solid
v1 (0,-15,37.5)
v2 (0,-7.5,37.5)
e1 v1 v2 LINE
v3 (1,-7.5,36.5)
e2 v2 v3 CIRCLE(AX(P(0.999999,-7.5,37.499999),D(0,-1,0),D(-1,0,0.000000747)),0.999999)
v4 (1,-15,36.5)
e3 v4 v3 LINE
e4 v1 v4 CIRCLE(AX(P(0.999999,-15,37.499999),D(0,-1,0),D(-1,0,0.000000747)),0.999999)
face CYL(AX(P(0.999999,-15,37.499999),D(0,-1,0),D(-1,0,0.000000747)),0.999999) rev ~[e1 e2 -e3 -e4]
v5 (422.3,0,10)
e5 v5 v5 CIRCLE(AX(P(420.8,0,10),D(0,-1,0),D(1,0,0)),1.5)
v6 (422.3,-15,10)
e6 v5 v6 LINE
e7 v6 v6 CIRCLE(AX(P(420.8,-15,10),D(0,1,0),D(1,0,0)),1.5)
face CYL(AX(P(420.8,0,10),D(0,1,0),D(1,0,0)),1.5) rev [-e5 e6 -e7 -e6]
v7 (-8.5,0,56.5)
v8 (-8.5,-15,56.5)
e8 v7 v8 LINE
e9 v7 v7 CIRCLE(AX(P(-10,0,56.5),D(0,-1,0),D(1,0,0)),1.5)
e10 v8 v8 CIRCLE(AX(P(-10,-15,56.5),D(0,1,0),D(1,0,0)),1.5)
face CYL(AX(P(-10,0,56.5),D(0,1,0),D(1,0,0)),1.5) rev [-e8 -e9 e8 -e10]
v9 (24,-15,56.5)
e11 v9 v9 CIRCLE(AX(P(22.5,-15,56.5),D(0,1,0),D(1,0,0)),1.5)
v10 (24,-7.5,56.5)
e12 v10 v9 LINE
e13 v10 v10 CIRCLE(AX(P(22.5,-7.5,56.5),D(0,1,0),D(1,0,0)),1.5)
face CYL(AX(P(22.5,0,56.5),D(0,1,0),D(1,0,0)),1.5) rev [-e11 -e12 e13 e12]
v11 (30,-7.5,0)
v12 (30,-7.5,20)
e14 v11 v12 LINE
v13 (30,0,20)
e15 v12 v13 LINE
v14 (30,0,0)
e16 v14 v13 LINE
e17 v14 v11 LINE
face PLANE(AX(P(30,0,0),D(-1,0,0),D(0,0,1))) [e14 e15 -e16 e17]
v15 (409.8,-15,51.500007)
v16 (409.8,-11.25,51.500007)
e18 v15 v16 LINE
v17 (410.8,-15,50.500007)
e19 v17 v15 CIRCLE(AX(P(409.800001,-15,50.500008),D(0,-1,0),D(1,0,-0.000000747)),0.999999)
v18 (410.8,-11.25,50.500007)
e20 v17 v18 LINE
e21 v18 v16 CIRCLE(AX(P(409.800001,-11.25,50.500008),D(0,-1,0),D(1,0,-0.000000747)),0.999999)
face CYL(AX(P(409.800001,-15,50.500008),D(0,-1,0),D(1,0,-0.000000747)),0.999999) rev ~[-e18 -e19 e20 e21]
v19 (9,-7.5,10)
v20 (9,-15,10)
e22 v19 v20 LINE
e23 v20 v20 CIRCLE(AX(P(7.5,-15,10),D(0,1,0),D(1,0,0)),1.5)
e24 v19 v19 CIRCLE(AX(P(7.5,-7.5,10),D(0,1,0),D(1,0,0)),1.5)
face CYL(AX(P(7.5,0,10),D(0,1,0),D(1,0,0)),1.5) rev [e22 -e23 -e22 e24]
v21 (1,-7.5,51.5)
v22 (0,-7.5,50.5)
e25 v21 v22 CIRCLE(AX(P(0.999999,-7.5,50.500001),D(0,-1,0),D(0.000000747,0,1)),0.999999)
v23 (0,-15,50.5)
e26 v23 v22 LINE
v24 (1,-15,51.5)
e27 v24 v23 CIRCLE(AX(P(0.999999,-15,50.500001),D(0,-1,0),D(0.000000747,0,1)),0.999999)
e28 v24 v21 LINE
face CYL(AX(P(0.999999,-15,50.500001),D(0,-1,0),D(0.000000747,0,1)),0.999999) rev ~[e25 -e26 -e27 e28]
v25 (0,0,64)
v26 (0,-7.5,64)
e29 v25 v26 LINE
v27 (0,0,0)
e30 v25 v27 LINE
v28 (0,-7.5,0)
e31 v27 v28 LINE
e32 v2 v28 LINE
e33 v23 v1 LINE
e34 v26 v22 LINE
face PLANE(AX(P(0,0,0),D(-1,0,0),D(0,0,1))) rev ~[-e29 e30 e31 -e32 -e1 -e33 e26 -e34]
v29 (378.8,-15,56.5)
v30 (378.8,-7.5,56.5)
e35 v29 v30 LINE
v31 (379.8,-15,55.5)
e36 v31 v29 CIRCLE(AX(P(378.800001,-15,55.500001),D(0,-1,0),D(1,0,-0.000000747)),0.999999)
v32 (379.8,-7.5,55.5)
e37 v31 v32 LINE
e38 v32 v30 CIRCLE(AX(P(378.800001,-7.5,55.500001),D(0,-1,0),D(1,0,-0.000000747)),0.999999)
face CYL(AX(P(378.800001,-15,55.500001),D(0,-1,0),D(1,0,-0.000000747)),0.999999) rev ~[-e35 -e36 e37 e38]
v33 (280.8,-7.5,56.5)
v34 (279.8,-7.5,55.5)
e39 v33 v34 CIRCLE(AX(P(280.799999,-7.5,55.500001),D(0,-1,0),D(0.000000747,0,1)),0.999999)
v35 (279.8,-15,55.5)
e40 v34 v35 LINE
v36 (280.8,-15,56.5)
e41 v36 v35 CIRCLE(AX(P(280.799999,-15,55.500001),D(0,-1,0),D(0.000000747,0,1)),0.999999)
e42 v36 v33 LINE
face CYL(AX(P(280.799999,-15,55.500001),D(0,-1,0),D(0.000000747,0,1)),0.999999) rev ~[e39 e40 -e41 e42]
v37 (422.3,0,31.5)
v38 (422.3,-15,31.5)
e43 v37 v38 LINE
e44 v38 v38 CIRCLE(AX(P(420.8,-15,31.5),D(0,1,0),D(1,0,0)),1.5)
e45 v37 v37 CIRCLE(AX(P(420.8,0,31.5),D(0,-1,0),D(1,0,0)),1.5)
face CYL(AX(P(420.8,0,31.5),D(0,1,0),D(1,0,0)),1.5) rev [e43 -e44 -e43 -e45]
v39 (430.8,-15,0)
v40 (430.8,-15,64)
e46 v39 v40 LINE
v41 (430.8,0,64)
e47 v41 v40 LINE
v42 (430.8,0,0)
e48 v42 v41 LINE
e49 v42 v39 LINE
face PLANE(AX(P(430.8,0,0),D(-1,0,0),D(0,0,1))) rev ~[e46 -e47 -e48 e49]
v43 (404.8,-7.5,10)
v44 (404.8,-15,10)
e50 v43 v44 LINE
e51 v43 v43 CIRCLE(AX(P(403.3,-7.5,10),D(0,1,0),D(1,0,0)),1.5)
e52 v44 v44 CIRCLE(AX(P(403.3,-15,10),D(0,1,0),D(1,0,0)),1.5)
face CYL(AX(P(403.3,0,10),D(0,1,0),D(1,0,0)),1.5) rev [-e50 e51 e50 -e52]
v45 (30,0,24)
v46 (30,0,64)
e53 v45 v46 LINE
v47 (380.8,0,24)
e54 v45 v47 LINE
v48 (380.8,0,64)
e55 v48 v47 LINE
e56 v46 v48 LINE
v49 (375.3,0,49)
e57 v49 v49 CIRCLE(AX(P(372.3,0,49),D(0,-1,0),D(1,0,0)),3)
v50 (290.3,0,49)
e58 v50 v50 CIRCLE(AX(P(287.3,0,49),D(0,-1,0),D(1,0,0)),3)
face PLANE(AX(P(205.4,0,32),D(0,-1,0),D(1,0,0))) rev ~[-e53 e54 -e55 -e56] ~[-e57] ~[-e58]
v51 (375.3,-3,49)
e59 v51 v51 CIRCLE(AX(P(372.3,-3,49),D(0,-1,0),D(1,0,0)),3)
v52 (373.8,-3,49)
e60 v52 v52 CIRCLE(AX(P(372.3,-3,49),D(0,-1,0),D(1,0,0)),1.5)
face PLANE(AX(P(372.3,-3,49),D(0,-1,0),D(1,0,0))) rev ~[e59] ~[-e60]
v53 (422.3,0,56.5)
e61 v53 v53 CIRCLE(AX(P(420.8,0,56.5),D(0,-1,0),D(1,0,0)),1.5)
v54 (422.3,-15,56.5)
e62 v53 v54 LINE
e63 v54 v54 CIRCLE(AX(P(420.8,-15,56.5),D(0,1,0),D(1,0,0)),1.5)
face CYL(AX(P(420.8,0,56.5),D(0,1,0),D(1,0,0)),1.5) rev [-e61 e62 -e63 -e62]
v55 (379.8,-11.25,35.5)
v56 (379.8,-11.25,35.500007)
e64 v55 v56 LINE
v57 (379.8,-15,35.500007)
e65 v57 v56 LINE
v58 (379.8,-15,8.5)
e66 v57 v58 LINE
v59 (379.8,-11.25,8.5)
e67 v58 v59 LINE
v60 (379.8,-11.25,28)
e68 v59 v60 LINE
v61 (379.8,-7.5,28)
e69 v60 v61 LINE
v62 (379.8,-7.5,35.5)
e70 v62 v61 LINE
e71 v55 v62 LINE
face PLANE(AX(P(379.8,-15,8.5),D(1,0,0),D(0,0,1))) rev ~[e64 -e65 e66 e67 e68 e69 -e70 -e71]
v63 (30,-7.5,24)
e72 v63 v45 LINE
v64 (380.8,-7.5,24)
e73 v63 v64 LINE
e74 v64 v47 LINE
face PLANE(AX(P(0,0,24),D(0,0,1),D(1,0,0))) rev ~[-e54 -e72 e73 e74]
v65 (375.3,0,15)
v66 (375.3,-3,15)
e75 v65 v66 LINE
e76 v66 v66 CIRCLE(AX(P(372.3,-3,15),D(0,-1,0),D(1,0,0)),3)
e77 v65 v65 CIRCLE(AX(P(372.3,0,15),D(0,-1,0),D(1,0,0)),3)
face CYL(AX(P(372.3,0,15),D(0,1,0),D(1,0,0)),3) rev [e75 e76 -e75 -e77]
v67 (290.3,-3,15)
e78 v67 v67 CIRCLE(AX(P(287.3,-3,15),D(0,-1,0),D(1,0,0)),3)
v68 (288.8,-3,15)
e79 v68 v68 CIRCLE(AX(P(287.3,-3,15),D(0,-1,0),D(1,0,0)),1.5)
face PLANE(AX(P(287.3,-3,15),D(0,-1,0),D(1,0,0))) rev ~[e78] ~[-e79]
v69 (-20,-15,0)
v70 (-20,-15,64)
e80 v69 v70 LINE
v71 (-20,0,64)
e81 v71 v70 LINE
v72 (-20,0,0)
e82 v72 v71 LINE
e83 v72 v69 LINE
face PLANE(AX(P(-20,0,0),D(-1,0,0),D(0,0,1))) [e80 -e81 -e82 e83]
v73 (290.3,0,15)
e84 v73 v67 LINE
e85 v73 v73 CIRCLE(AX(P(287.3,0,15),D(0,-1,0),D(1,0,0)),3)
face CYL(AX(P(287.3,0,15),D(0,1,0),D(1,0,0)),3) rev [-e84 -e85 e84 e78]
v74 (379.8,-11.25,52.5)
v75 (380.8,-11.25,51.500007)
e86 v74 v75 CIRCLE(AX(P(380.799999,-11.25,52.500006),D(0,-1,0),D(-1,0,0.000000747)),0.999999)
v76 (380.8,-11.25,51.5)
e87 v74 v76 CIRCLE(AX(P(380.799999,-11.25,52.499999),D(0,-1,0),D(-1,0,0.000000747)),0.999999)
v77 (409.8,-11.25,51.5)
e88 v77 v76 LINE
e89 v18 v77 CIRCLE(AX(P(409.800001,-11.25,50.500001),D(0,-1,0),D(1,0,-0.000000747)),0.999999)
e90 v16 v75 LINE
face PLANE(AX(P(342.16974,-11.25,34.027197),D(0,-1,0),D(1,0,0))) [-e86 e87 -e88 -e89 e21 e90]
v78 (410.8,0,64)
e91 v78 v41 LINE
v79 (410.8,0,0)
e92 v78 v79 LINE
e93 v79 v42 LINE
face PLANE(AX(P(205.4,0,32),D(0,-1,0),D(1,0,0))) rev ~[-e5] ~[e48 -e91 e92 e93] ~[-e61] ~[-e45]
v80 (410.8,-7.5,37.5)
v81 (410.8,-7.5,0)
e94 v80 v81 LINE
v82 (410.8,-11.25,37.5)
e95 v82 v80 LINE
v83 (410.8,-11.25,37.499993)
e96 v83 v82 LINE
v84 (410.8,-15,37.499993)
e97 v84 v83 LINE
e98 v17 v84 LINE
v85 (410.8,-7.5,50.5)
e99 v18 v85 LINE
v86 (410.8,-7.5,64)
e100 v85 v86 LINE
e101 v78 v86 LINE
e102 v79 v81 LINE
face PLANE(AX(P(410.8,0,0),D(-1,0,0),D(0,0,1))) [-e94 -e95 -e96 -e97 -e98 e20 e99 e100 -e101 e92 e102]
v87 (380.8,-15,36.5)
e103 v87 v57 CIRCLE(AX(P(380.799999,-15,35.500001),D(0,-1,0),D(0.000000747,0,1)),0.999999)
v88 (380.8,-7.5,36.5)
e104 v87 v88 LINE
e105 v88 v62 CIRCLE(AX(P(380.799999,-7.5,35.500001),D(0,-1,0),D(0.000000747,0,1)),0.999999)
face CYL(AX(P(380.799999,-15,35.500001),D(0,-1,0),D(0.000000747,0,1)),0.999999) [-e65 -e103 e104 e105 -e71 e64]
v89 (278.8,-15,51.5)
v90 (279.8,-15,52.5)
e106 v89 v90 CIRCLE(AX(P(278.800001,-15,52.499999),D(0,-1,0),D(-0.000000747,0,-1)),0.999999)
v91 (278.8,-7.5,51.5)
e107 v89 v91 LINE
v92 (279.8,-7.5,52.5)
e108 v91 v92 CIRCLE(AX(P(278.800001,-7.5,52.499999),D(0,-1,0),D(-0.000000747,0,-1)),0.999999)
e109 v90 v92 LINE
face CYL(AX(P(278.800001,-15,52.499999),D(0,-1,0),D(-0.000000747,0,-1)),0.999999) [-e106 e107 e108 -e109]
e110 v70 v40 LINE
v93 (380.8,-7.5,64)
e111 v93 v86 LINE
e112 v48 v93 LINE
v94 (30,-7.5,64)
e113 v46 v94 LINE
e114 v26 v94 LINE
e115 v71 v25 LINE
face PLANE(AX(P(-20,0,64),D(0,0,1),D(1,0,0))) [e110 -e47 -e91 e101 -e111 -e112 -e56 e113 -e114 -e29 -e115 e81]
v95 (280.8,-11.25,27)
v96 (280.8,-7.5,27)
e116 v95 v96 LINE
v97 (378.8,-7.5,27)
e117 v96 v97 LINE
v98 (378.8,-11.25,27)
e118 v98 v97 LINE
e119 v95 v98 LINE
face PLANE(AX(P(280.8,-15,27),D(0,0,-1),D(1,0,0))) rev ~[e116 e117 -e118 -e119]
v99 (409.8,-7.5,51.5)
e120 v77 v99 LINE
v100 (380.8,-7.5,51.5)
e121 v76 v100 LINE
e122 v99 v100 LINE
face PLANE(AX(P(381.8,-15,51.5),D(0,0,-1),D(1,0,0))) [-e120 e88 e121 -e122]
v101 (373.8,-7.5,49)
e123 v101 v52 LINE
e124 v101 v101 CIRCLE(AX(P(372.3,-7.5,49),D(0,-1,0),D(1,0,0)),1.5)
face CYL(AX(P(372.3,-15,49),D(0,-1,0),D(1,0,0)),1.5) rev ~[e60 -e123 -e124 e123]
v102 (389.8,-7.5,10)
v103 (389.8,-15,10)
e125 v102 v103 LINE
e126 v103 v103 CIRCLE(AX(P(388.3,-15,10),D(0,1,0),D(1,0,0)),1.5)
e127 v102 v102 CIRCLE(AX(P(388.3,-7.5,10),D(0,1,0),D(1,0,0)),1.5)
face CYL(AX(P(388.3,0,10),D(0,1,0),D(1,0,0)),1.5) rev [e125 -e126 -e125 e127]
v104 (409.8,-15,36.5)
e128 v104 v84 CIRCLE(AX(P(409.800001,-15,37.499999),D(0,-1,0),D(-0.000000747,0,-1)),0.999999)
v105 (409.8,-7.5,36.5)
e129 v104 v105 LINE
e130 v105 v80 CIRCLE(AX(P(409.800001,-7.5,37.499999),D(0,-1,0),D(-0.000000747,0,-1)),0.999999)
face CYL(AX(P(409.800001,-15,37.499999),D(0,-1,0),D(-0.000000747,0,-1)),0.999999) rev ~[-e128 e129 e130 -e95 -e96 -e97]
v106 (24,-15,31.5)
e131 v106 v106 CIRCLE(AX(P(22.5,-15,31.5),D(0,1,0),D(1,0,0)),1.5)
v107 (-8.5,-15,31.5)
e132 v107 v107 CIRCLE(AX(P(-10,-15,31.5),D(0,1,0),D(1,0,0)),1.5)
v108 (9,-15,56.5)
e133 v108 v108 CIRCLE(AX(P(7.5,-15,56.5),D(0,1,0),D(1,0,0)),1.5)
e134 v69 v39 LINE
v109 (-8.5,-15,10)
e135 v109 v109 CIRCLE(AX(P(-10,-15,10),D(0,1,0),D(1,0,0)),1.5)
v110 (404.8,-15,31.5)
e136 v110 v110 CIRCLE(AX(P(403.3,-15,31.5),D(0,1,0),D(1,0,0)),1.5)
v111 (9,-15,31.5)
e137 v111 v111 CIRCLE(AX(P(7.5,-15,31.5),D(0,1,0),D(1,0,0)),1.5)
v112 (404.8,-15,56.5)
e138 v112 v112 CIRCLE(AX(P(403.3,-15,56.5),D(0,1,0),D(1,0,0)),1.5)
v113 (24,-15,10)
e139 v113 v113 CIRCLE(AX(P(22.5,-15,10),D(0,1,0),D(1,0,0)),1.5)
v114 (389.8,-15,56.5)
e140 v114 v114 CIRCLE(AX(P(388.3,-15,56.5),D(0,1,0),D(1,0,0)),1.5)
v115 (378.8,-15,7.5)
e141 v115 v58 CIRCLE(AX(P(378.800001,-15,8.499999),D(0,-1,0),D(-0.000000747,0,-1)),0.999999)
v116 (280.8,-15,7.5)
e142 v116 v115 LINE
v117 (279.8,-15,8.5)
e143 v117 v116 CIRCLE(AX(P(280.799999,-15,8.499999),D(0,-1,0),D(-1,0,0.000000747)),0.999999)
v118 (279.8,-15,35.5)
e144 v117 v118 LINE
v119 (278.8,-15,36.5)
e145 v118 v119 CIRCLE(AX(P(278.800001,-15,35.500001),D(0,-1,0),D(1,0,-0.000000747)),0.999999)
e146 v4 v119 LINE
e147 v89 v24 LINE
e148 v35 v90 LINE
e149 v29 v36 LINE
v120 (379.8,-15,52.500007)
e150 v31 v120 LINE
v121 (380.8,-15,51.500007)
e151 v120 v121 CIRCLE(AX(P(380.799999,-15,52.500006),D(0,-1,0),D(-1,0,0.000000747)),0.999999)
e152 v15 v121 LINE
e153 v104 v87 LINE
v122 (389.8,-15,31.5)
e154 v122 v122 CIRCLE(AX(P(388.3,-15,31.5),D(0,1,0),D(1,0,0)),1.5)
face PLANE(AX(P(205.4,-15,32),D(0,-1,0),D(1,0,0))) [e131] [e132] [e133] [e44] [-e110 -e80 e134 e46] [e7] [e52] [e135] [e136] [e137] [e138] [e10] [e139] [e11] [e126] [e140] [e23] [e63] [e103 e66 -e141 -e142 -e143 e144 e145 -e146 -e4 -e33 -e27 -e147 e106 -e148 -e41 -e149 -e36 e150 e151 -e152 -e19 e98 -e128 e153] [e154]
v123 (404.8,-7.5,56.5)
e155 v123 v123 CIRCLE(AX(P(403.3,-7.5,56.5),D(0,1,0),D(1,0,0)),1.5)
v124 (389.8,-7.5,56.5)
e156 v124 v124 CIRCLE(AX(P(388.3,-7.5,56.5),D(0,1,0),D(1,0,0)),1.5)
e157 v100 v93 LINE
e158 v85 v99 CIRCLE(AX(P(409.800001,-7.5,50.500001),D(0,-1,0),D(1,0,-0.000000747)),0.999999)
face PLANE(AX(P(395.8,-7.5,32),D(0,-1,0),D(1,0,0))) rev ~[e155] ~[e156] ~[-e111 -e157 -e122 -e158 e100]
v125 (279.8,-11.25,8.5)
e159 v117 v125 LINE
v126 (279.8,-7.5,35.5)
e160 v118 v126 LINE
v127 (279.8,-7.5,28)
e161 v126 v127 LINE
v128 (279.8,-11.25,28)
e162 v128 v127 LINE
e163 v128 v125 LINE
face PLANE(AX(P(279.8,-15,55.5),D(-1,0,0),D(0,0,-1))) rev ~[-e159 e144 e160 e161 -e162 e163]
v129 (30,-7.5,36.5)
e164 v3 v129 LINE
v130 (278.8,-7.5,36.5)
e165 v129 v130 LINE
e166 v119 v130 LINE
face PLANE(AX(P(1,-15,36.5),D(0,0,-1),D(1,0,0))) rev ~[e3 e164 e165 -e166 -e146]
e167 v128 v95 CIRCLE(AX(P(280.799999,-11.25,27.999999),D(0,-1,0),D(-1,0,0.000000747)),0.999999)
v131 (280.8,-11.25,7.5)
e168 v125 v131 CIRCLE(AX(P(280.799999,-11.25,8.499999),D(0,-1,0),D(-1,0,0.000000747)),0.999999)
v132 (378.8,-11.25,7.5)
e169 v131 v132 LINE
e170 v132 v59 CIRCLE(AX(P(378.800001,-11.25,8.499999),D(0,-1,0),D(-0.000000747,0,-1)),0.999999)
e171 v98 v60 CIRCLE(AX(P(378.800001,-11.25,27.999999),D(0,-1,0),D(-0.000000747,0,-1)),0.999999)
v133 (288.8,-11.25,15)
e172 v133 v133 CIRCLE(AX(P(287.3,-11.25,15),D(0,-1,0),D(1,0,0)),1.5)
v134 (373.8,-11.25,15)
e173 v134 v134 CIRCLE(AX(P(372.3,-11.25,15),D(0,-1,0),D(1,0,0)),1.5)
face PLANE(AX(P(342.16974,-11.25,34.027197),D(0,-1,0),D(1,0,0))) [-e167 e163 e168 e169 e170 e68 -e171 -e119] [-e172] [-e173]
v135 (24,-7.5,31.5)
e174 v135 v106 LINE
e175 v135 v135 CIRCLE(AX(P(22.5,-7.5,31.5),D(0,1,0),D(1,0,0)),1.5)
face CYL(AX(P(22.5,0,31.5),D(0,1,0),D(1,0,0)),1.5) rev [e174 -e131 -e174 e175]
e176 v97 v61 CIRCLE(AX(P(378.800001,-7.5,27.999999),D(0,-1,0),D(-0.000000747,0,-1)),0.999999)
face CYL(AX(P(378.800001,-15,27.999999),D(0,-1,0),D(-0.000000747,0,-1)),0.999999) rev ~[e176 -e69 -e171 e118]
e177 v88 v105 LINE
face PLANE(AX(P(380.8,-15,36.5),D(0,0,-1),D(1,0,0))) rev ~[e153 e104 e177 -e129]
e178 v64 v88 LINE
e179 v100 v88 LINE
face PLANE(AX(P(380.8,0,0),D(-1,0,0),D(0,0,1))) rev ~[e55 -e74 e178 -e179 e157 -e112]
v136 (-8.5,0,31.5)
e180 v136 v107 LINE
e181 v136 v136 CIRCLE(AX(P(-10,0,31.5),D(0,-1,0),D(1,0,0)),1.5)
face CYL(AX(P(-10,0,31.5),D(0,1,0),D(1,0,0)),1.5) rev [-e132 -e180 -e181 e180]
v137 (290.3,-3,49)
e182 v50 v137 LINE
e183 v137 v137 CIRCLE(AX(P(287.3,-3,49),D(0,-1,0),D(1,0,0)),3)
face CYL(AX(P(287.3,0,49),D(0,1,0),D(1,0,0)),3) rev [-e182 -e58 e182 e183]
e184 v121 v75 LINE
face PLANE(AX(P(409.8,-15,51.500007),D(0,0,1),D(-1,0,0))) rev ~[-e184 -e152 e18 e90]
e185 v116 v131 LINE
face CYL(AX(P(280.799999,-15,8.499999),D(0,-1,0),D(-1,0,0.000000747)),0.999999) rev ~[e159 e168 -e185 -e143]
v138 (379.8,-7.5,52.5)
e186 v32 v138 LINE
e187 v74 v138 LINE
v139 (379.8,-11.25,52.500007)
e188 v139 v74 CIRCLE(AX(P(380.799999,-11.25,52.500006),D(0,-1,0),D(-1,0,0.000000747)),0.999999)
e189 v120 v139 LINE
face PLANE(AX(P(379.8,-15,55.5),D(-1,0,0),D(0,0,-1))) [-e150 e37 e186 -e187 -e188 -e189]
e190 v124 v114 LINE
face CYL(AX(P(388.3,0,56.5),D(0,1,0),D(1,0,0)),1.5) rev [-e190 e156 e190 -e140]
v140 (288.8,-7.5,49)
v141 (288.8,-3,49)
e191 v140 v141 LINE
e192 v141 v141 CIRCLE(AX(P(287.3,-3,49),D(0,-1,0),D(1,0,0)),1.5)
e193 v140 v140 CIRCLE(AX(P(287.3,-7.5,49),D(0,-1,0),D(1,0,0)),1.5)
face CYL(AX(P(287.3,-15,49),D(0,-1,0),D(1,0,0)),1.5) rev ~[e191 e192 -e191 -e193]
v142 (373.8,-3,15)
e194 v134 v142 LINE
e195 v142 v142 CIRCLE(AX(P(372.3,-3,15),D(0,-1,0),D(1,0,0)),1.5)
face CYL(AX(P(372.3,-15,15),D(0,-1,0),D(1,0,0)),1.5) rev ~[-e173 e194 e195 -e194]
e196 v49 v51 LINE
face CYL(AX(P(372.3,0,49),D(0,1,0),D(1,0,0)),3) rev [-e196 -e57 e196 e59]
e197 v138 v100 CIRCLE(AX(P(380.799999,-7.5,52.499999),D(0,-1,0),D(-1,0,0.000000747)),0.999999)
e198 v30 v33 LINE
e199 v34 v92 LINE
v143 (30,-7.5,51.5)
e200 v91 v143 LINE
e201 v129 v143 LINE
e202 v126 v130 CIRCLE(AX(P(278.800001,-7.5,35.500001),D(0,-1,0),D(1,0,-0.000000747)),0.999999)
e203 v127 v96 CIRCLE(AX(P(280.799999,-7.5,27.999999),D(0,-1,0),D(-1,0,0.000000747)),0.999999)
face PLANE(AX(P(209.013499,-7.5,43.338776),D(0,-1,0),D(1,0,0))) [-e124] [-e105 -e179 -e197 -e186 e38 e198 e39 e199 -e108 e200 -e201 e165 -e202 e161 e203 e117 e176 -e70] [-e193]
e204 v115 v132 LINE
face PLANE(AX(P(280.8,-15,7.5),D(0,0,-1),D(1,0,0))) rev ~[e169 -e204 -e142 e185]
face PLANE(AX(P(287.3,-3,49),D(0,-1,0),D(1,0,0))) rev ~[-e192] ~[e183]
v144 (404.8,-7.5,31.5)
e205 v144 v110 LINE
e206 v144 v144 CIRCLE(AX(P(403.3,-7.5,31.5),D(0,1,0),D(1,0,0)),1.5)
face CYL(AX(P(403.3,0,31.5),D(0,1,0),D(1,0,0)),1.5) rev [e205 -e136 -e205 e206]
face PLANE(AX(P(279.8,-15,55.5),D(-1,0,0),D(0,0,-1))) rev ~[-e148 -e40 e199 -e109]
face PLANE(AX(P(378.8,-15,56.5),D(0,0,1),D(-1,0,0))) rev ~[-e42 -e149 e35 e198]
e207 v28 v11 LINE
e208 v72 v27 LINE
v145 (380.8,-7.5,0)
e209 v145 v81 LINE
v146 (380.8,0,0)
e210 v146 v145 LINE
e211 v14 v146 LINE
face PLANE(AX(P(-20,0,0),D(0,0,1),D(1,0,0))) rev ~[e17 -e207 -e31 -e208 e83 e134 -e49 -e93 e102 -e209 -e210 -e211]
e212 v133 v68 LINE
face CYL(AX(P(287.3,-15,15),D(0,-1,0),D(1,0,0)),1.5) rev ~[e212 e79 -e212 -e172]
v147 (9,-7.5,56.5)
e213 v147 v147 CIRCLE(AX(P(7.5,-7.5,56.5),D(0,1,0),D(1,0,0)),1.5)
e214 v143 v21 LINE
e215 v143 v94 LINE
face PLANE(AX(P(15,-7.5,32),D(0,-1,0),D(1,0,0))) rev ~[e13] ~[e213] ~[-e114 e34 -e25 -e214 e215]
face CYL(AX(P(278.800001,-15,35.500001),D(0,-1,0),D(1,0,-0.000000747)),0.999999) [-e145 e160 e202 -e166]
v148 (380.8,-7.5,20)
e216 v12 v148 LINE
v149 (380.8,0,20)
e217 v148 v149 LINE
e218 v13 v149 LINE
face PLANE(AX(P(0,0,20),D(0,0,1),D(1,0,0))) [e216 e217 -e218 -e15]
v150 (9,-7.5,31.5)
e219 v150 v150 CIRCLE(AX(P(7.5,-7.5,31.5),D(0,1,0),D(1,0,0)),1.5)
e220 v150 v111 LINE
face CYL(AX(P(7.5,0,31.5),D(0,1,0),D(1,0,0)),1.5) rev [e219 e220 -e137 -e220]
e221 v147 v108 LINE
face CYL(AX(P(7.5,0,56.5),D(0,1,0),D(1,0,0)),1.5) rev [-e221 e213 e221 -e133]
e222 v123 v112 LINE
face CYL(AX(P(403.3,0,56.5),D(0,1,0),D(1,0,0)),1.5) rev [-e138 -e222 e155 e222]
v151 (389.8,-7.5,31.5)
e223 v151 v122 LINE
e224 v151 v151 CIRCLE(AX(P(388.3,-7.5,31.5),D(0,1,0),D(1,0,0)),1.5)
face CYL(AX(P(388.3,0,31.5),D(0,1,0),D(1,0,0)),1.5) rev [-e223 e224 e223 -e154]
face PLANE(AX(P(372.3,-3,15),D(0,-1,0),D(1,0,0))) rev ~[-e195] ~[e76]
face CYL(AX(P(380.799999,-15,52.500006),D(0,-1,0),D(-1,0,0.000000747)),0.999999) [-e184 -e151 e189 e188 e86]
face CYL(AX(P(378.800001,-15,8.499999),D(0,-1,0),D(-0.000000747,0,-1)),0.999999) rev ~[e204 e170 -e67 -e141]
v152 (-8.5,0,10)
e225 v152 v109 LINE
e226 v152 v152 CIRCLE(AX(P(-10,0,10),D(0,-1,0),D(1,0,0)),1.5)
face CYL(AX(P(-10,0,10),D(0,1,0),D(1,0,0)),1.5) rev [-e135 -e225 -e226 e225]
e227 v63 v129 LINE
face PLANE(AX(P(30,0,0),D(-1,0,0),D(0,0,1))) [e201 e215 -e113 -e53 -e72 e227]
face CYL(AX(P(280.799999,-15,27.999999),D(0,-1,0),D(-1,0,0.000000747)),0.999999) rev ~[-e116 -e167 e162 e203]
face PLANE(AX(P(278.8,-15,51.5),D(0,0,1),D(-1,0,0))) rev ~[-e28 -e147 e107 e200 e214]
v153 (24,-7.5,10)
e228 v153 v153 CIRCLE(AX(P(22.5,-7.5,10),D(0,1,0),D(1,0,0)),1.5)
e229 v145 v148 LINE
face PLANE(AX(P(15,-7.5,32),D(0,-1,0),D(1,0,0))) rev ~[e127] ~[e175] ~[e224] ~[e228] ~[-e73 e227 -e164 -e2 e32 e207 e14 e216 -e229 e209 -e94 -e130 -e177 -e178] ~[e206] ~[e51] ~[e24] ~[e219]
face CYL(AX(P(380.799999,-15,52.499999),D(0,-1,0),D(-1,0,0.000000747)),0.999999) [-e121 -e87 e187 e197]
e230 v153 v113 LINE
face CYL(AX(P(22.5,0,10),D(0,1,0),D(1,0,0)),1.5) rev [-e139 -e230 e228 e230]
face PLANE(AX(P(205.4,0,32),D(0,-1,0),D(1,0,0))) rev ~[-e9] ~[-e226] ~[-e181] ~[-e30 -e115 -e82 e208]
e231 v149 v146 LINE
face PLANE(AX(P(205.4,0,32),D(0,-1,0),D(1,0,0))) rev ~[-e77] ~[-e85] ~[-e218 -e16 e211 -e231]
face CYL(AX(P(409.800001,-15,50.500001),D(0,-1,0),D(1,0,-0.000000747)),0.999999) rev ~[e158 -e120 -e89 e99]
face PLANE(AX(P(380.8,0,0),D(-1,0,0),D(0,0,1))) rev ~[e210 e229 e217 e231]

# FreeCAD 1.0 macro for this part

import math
import FreeCAD as App
import Part
import Sketcher

doc = App.newDocument("Part")
body = doc.addObject("PartDesign::Body", "Body")

# Sketch on XZ plane
sketch1 = body.newObject("Sketcher::SketchObject", "Sketch")
sketch1.AttachmentSupport = (doc.getObject("XZ_Plane"), [""])
sketch1.MapMode = "FlatFace"
sketch1.addGeometry([
    Part.LineSegment(App.Vector(-20, 64, 0), App.Vector(-20, 0, 0)),
    Part.LineSegment(App.Vector(-20, 0, 0), App.Vector(431, 0, 0)),
    Part.LineSegment(App.Vector(431, 0, 0), App.Vector(431, 64, 0)),
    Part.LineSegment(App.Vector(431, 64, 0), App.Vector(-20, 64, 0)),
], False)
sketch1.addConstraint([
    Sketcher.Constraint("Coincident", 0, 2, 1, 1),
    Sketcher.Constraint("Coincident", 1, 2, 2, 1),
    Sketcher.Constraint("Coincident", 2, 2, 3, 1),
    Sketcher.Constraint("Coincident", 3, 2, 0, 1),
    Sketcher.Constraint("Vertical", 0),
    Sketcher.Constraint("Horizontal", 1),
    Sketcher.Constraint("Vertical", 2),
    Sketcher.Constraint("Horizontal", 3),
    Sketcher.Constraint("PointOnObject", 0, 2, -1),
    Sketcher.Constraint("DistanceY", 0, 2, 0, 1, 64.0),
    Sketcher.Constraint("DistanceX", 1, 1, 1, 2, 450.8),
    Sketcher.Constraint("DistanceX", 0, 2, -1, 1, 20.0),
])
pad1 = body.newObject("PartDesign::Pad", "Pad")
pad1.Profile = sketch1
pad1.Length = 15

# Sketch on XZ plane
sketch2 = body.newObject("Sketcher::SketchObject", "Sketch001")
sketch2.AttachmentSupport = (doc.getObject("XZ_Plane"), [""])
sketch2.MapMode = "FlatFace"
sketch2.addGeometry([
    Part.LineSegment(App.Vector(0, 64, 0), App.Vector(0, 0, 0)),  # 0
    Part.LineSegment(App.Vector(0, 0, 0), App.Vector(30, 0, 0)),  # 1
    Part.LineSegment(App.Vector(30, 0, 0), App.Vector(30, 64, 0)),  # 2
    Part.LineSegment(App.Vector(30, 64, 0), App.Vector(0, 64, 0)),  # 3
    Part.LineSegment(App.Vector(381, 64, 0), App.Vector(381, 0, 0)),  # 4
    Part.LineSegment(App.Vector(381, 0, 0), App.Vector(411, 0, 0)),  # 5
    Part.LineSegment(App.Vector(411, 0, 0), App.Vector(411, 64, 0)),  # 6
    Part.LineSegment(App.Vector(411, 64, 0), App.Vector(381, 64, 0)),  # 7
], False)
sketch2.addConstraint([
    Sketcher.Constraint("Coincident", 0, 2, 1, 1),
    Sketcher.Constraint("Coincident", 1, 2, 2, 1),
    Sketcher.Constraint("Coincident", 2, 2, 3, 1),
    Sketcher.Constraint("Coincident", 3, 2, 0, 1),
    Sketcher.Constraint("Coincident", 4, 2, 5, 1),
    Sketcher.Constraint("Coincident", 5, 2, 6, 1),
    Sketcher.Constraint("Coincident", 6, 2, 7, 1),
    Sketcher.Constraint("Coincident", 7, 2, 4, 1),
    Sketcher.Constraint("Vertical", 0),
    Sketcher.Constraint("Horizontal", 1),
    Sketcher.Constraint("Vertical", 2),
    Sketcher.Constraint("Horizontal", 3),
    Sketcher.Constraint("Vertical", 4),
    Sketcher.Constraint("Horizontal", 5),
    Sketcher.Constraint("Vertical", 6),
    Sketcher.Constraint("Horizontal", 7),
    Sketcher.Constraint("Coincident", 0, 2, -1, 1),
    Sketcher.Constraint("PointOnObject", 4, 2, -1),
    Sketcher.Constraint("Horizontal", 3, 2, 6, 2),
    Sketcher.Constraint("Equal", 3, 5),
    Sketcher.Constraint("DistanceX", 1, 1, 1, 2, 30.0),
    Sketcher.Constraint("DistanceY", 0, 2, 0, 1, 64.0),
    Sketcher.Constraint("DistanceX", -1, 1, 4, 2, 380.8),
])
pocket1 = body.newObject("PartDesign::Pocket", "Pocket")
pocket1.Profile = sketch2
pocket1.Length = 7.5
pocket1.Reversed = True

# Sketch on XZ plane
sketch3 = body.newObject("Sketcher::SketchObject", "Sketch002")
sketch3.AttachmentSupport = (doc.getObject("XZ_Plane"), [""])
sketch3.MapMode = "FlatFace"
sketch3.AttachmentOffset = App.Placement(App.Vector(0, 0, 15), App.Rotation())
sketch3.addGeometry([
    Part.LineSegment(App.Vector(279.8, 55.5, 0), App.Vector(279.8, 8.5, 0)),  # 0
    Part.ArcOfCircle(Part.Circle(App.Vector(280.8, 8.5, 0), App.Vector(0, 0, 1), 1), math.radians(180), math.radians(270)),  # 1
    Part.LineSegment(App.Vector(280.8, 7.5, 0), App.Vector(378.8, 7.5, 0)),  # 2
    Part.ArcOfCircle(Part.Circle(App.Vector(378.8, 8.5, 0), App.Vector(0, 0, 1), 1), math.radians(-90), math.radians(0)),  # 3
    Part.LineSegment(App.Vector(379.8, 8.5, 0), App.Vector(379.8, 35.5, 0)),  # 4
    Part.ArcOfCircle(Part.Circle(App.Vector(380.8, 35.5, 0), App.Vector(0, 0, 1), 1), math.radians(90), math.radians(180)),  # 5
    Part.LineSegment(App.Vector(380.8, 36.5, 0), App.Vector(409.8, 36.5, 0)),  # 6
    Part.ArcOfCircle(Part.Circle(App.Vector(409.8, 37.5, 0), App.Vector(0, 0, 1), 1), math.radians(-90), math.radians(0)),  # 7
    Part.LineSegment(App.Vector(410.8, 37.5, 0), App.Vector(410.8, 50.5, 0)),  # 8
    Part.ArcOfCircle(Part.Circle(App.Vector(409.8, 50.5, 0), App.Vector(0, 0, 1), 1), math.radians(0), math.radians(90)),  # 9
    Part.LineSegment(App.Vector(409.8, 51.5, 0), App.Vector(380.8, 51.5, 0)),  # 10
    Part.ArcOfCircle(Part.Circle(App.Vector(380.8, 52.5, 0), App.Vector(0, 0, 1), 1), math.radians(180), math.radians(270)),  # 11
    Part.LineSegment(App.Vector(379.8, 52.5, 0), App.Vector(379.8, 55.5, 0)),  # 12
    Part.ArcOfCircle(Part.Circle(App.Vector(378.8, 55.5, 0), App.Vector(0, 0, 1), 1), math.radians(0), math.radians(90)),  # 13
    Part.LineSegment(App.Vector(378.8, 56.5, 0), App.Vector(280.8, 56.5, 0)),  # 14
    Part.ArcOfCircle(Part.Circle(App.Vector(280.8, 55.5, 0), App.Vector(0, 0, 1), 1), math.radians(90), math.radians(180)),  # 15
], False)
sketch3.addConstraint([
    Sketcher.Constraint("Tangent", 0, 2, 1, 1),
    Sketcher.Constraint("Tangent", 1, 2, 2, 1),
    Sketcher.Constraint("Tangent", 2, 2, 3, 1),
    Sketcher.Constraint("Tangent", 3, 2, 4, 1),
    Sketcher.Constraint("Tangent", 4, 2, 5, 2),
    Sketcher.Constraint("Tangent", 5, 1, 6, 1),
    Sketcher.Constraint("Tangent", 6, 2, 7, 1),
    Sketcher.Constraint("Coincident", 7, 2, 8, 1),
    Sketcher.Constraint("Tangent", 8, 2, 9, 1),
    Sketcher.Constraint("Tangent", 9, 2, 10, 1),
    Sketcher.Constraint("Tangent", 10, 2, 11, 2),
    Sketcher.Constraint("Tangent", 11, 1, 12, 1),
    Sketcher.Constraint("Tangent", 12, 2, 13, 1),
    Sketcher.Constraint("Tangent", 13, 2, 14, 1),
    Sketcher.Constraint("Tangent", 14, 2, 15, 1),
    Sketcher.Constraint("Tangent", 15, 2, 0, 1),
    Sketcher.Constraint("Vertical", 0),
    Sketcher.Constraint("Horizontal", 2),
    Sketcher.Constraint("Vertical", 4),
    Sketcher.Constraint("Horizontal", 6),
    Sketcher.Constraint("Vertical", 8),
    Sketcher.Constraint("Horizontal", 10),
    Sketcher.Constraint("Vertical", 12),
    Sketcher.Constraint("Horizontal", 14),
    Sketcher.Constraint("Equal", 1, 3),
    Sketcher.Constraint("Equal", 3, 5),
    Sketcher.Constraint("Equal", 5, 7),
    Sketcher.Constraint("Equal", 7, 9),
    Sketcher.Constraint("Equal", 9, 11),
    Sketcher.Constraint("Equal", 11, 13),
    Sketcher.Constraint("Equal", 13, 15),
    Sketcher.Constraint("Vertical", 5, 3, 11, 3),
    Sketcher.Constraint("Radius", 1, 0.999999),
    Sketcher.Constraint("DistanceX", 2, 1, 2, 2, 98.0),
    Sketcher.Constraint("DistanceX", 6, 1, 6, 2, 29.0),
    Sketcher.Constraint("DistanceY", 0, 2, 0, 1, 47.0),
    Sketcher.Constraint("DistanceY", 7, 3, 9, 3, 13.000001),
    Sketcher.Constraint("DistanceX", -1, 1, 1, 3, 280.799999),
    Sketcher.Constraint("DistanceY", -1, 1, 1, 3, 8.499999),
    Sketcher.Constraint("DistanceY", 4, 1, 4, 2, 27.000007),
    Sketcher.Constraint("DistanceY", 8, 1, 8, 2, 13.000014),
])
pocket2 = body.newObject("PartDesign::Pocket", "Pocket001")
pocket2.Profile = sketch3
pocket2.Length = 3.75

# Sketch on XZ plane
sketch4 = body.newObject("Sketcher::SketchObject", "Sketch003")
sketch4.AttachmentSupport = (doc.getObject("XZ_Plane"), [""])
sketch4.MapMode = "FlatFace"
sketch4.AttachmentOffset = App.Placement(App.Vector(0, 0, 15), App.Rotation())
sketch4.addGeometry([
    Part.LineSegment(App.Vector(409.8, 51.5, 0), App.Vector(381.8, 51.5, 0)),  # 0
    Part.ArcOfCircle(Part.Circle(App.Vector(381.8, 50.5, 0), App.Vector(0, 0, 1), 1), math.radians(90), math.radians(180)),  # 1
    Part.LineSegment(App.Vector(380.8, 50.5, 0), App.Vector(380.8, 37.5, 0)),  # 2
    Part.ArcOfCircle(Part.Circle(App.Vector(381.8, 37.5, 0), App.Vector(0, 0, 1), 1), math.radians(180), math.radians(270)),  # 3
    Part.LineSegment(App.Vector(381.8, 36.5, 0), App.Vector(409.8, 36.5, 0)),  # 4
    Part.ArcOfCircle(Part.Circle(App.Vector(409.8, 37.5, 0), App.Vector(0, 0, 1), 1), math.radians(-90), math.radians(0)),  # 5
    Part.LineSegment(App.Vector(410.8, 37.5, 0), App.Vector(410.8, 50.5, 0)),  # 6
    Part.ArcOfCircle(Part.Circle(App.Vector(409.8, 50.5, 0), App.Vector(0, 0, 1), 1), math.radians(0), math.radians(90)),  # 7
], False)
sketch4.addConstraint([
    Sketcher.Constraint("Tangent", 0, 2, 1, 1),
    Sketcher.Constraint("Tangent", 1, 2, 2, 1),
    Sketcher.Constraint("Tangent", 2, 2, 3, 1),
    Sketcher.Constraint("Tangent", 3, 2, 4, 1),
    Sketcher.Constraint("Tangent", 4, 2, 5, 1),
    Sketcher.Constraint("Tangent", 5, 2, 6, 1),
    Sketcher.Constraint("Tangent", 6, 2, 7, 1),
    Sketcher.Constraint("Tangent", 7, 2, 0, 1),
    Sketcher.Constraint("Horizontal", 0),
    Sketcher.Constraint("Vertical", 2),
    Sketcher.Constraint("Horizontal", 4),
    Sketcher.Constraint("Vertical", 6),
    Sketcher.Constraint("Equal", 1, 3),
    Sketcher.Constraint("Equal", 3, 5),
    Sketcher.Constraint("Equal", 5, 7),
    Sketcher.Constraint("Radius", 1, 0.999999),
    Sketcher.Constraint("DistanceX", 0, 2, 0, 1, 28.0),
    Sketcher.Constraint("DistanceY", 2, 2, 2, 1, 13.0),
    Sketcher.Constraint("DistanceX", -1, 1, 1, 3, 381.799999),
    Sketcher.Constraint("DistanceY", -1, 1, 1, 3, 50.500001),
])
pocket3 = body.newObject("PartDesign::Pocket", "Pocket002")
pocket3.Profile = sketch4
pocket3.Type = "ThroughAll"

# Sketch on XZ plane
sketch5 = body.newObject("Sketcher::SketchObject", "Sketch004")
sketch5.AttachmentSupport = (doc.getObject("XZ_Plane"), [""])
sketch5.MapMode = "FlatFace"
sketch5.AttachmentOffset = App.Placement(App.Vector(0, 0, 15), App.Rotation())
sketch5.addGeometry([
    Part.Circle(App.Vector(287.3, 49, 0), App.Vector(0, 0, 1), 1.5),
    Part.Circle(App.Vector(287.3, 15, 0), App.Vector(0, 0, 1), 1.5),
    Part.Circle(App.Vector(372.3, 49, 0), App.Vector(0, 0, 1), 1.5),
    Part.Circle(App.Vector(372.3, 15, 0), App.Vector(0, 0, 1), 1.5),
], False)
sketch5.addConstraint([
    Sketcher.Constraint("Equal", 0, 1),
    Sketcher.Constraint("Equal", 1, 2),
    Sketcher.Constraint("Equal", 2, 3),
    Sketcher.Constraint("Horizontal", 0, 3, 2, 3),
    Sketcher.Constraint("Horizontal", 1, 3, 3, 3),
    Sketcher.Constraint("Vertical", 0, 3, 1, 3),
    Sketcher.Constraint("Vertical", 2, 3, 3, 3),
    Sketcher.Constraint("Diameter", 0, 3.0),
    Sketcher.Constraint("DistanceY", -1, 1, 0, 3, 49.0),
    Sketcher.Constraint("DistanceY", -1, 1, 1, 3, 15.0),
    Sketcher.Constraint("DistanceX", 0, 3, 2, 3, 85.0),
    Sketcher.Constraint("DistanceX", -1, 1, 0, 3, 287.3),
])
pocket4 = body.newObject("PartDesign::Pocket", "Pocket003")
pocket4.Profile = sketch5
pocket4.Type = "ThroughAll"

# Sketch on XZ plane
sketch6 = body.newObject("Sketcher::SketchObject", "Sketch005")
sketch6.AttachmentSupport = (doc.getObject("XZ_Plane"), [""])
sketch6.MapMode = "FlatFace"
sketch6.addGeometry([
    Part.LineSegment(App.Vector(0, 24, 0), App.Vector(0, 20, 0)),
    Part.LineSegment(App.Vector(0, 20, 0), App.Vector(410.8, 20, 0)),
    Part.LineSegment(App.Vector(410.8, 20, 0), App.Vector(410.8, 24, 0)),
    Part.LineSegment(App.Vector(410.8, 24, 0), App.Vector(0, 24, 0)),
], False)
sketch6.addConstraint([
    Sketcher.Constraint("Coincident", 0, 2, 1, 1),
    Sketcher.Constraint("Coincident", 1, 2, 2, 1),
    Sketcher.Constraint("Coincident", 2, 2, 3, 1),
    Sketcher.Constraint("Coincident", 3, 2, 0, 1),
    Sketcher.Constraint("Vertical", 0),
    Sketcher.Constraint("Horizontal", 1),
    Sketcher.Constraint("Vertical", 2),
    Sketcher.Constraint("Horizontal", 3),
    Sketcher.Constraint("PointOnObject", 0, 2, -2),
    Sketcher.Constraint("DistanceY", 0, 2, 0, 1, 4.0),
    Sketcher.Constraint("DistanceX", 1, 1, 1, 2, 410.8),
    Sketcher.Constraint("DistanceY", -1, 1, 0, 2, 20.0),
])
pocket5 = body.newObject("PartDesign::Pocket", "Pocket004")
pocket5.Profile = sketch6
pocket5.Length = 7.5
pocket5.Reversed = True

# Sketch on XZ plane
sketch7 = body.newObject("Sketcher::SketchObject", "Sketch006")
sketch7.AttachmentSupport = (doc.getObject("XZ_Plane"), [""])
sketch7.MapMode = "FlatFace"
sketch7.addGeometry([
    Part.Circle(App.Vector(7.5, 56.5, 0), App.Vector(0, 0, 1), 1.5),  # 0
    Part.Circle(App.Vector(7.5, 31.5, 0), App.Vector(0, 0, 1), 1.5),  # 1
    Part.Circle(App.Vector(7.5, 10, 0), App.Vector(0, 0, 1), 1.5),  # 2
    Part.Circle(App.Vector(22.5, 56.5, 0), App.Vector(0, 0, 1), 1.5),  # 3
    Part.Circle(App.Vector(22.5, 31.5, 0), App.Vector(0, 0, 1), 1.5),  # 4
    Part.Circle(App.Vector(22.5, 10, 0), App.Vector(0, 0, 1), 1.5),  # 5
    Part.Circle(App.Vector(388.3, 56.5, 0), App.Vector(0, 0, 1), 1.5),  # 6
    Part.Circle(App.Vector(388.3, 31.5, 0), App.Vector(0, 0, 1), 1.5),  # 7
    Part.Circle(App.Vector(388.3, 10, 0), App.Vector(0, 0, 1), 1.5),  # 8
    Part.Circle(App.Vector(403.3, 56.5, 0), App.Vector(0, 0, 1), 1.5),  # 9
    Part.Circle(App.Vector(403.3, 31.5, 0), App.Vector(0, 0, 1), 1.5),  # 10
    Part.Circle(App.Vector(403.3, 10, 0), App.Vector(0, 0, 1), 1.5),  # 11
    Part.Circle(App.Vector(-10, 56.5, 0), App.Vector(0, 0, 1), 1.5),  # 12
    Part.Circle(App.Vector(-10, 31.5, 0), App.Vector(0, 0, 1), 1.5),  # 13
    Part.Circle(App.Vector(-10, 10, 0), App.Vector(0, 0, 1), 1.5),  # 14
    Part.Circle(App.Vector(420.8, 56.5, 0), App.Vector(0, 0, 1), 1.5),  # 15
    Part.Circle(App.Vector(420.8, 31.5, 0), App.Vector(0, 0, 1), 1.5),  # 16
    Part.Circle(App.Vector(420.8, 10, 0), App.Vector(0, 0, 1), 1.5),  # 17
], False)
sketch7.addConstraint([
    Sketcher.Constraint("Equal", 0, 1),
    Sketcher.Constraint("Equal", 1, 2),
    Sketcher.Constraint("Equal", 2, 3),
    Sketcher.Constraint("Equal", 3, 4),
    Sketcher.Constraint("Equal", 4, 5),
    Sketcher.Constraint("Equal", 5, 6),
    Sketcher.Constraint("Equal", 6, 7),
    Sketcher.Constraint("Equal", 7, 8),
    Sketcher.Constraint("Equal", 8, 9),
    Sketcher.Constraint("Equal", 9, 10),
    Sketcher.Constraint("Equal", 10, 11),
    Sketcher.Constraint("Equal", 11, 12),
    Sketcher.Constraint("Equal", 12, 13),
    Sketcher.Constraint("Equal", 13, 14),
    Sketcher.Constraint("Equal", 14, 15),
    Sketcher.Constraint("Equal", 15, 16),
    Sketcher.Constraint("Equal", 16, 17),
    Sketcher.Constraint("Horizontal", 0, 3, 3, 3),
    Sketcher.Constraint("Horizontal", 1, 3, 4, 3),
    Sketcher.Constraint("Horizontal", 2, 3, 5, 3),
    Sketcher.Constraint("Horizontal", 3, 3, 6, 3),
    Sketcher.Constraint("Horizontal", 4, 3, 7, 3),
    Sketcher.Constraint("Horizontal", 5, 3, 8, 3),
    Sketcher.Constraint("Horizontal", 6, 3, 9, 3),
    Sketcher.Constraint("Horizontal", 7, 3, 10, 3),
    Sketcher.Constraint("Horizontal", 8, 3, 11, 3),
    Sketcher.Constraint("Horizontal", 9, 3, 12, 3),
    Sketcher.Constraint("Horizontal", 10, 3, 13, 3),
    Sketcher.Constraint("Horizontal", 11, 3, 14, 3),
    Sketcher.Constraint("Horizontal", 12, 3, 15, 3),
    Sketcher.Constraint("Horizontal", 13, 3, 16, 3),
    Sketcher.Constraint("Horizontal", 14, 3, 17, 3),
    Sketcher.Constraint("Vertical", 0, 3, 1, 3),
    Sketcher.Constraint("Vertical", 1, 3, 2, 3),
    Sketcher.Constraint("Vertical", 3, 3, 4, 3),
    Sketcher.Constraint("Vertical", 4, 3, 5, 3),
    Sketcher.Constraint("Vertical", 6, 3, 7, 3),
    Sketcher.Constraint("Vertical", 7, 3, 8, 3),
    Sketcher.Constraint("Vertical", 9, 3, 10, 3),
    Sketcher.Constraint("Vertical", 10, 3, 11, 3),
    Sketcher.Constraint("Vertical", 12, 3, 13, 3),
    Sketcher.Constraint("Vertical", 13, 3, 14, 3),
    Sketcher.Constraint("Vertical", 15, 3, 16, 3),
    Sketcher.Constraint("Vertical", 16, 3, 17, 3),
    Sketcher.Constraint("Diameter", 0, 3.0),
    Sketcher.Constraint("DistanceY", -1, 1, 2, 3, 10.0),
    Sketcher.Constraint("DistanceX", 12, 3, -1, 1, 10.0),
    Sketcher.Constraint("DistanceY", 1, 3, 0, 3, 25.0),
    Sketcher.Constraint("DistanceX", 0, 3, 3, 3, 15.0),
    Sketcher.Constraint("DistanceX", 6, 3, 9, 3, 15.0),
    Sketcher.Constraint("DistanceX", -1, 1, 0, 3, 7.5),
    Sketcher.Constraint("DistanceY", -1, 1, 0, 3, 56.5),
    Sketcher.Constraint("DistanceX", -1, 1, 6, 3, 388.3),
    Sketcher.Constraint("DistanceX", -1, 1, 15, 3, 420.8),
])
pocket6 = body.newObject("PartDesign::Pocket", "Pocket005")
pocket6.Profile = sketch7
pocket6.Type = "ThroughAll"
pocket6.Reversed = True

# Sketch on XZ plane
sketch8 = body.newObject("Sketcher::SketchObject", "Sketch007")
sketch8.AttachmentSupport = (doc.getObject("XZ_Plane"), [""])
sketch8.MapMode = "FlatFace"
sketch8.AttachmentOffset = App.Placement(App.Vector(0, 0, 15), App.Rotation())
sketch8.addGeometry([
    Part.LineSegment(App.Vector(378.8, 56.5, 0), App.Vector(280.8, 56.5, 0)),  # 0
    Part.ArcOfCircle(Part.Circle(App.Vector(280.8, 55.5, 0), App.Vector(0, 0, 1), 1), math.radians(90), math.radians(180)),  # 1
    Part.LineSegment(App.Vector(279.8, 55.5, 0), App.Vector(279.8, 52.5, 0)),  # 2
    Part.ArcOfCircle(Part.Circle(App.Vector(278.8, 52.5, 0), App.Vector(0, 0, 1), 1), math.radians(-90), math.radians(0)),  # 3
    Part.LineSegment(App.Vector(278.8, 51.5, 0), App.Vector(1, 51.5, 0)),  # 4
    Part.ArcOfCircle(Part.Circle(App.Vector(1, 50.5, 0), App.Vector(0, 0, 1), 1), math.radians(90), math.radians(180)),  # 5
    Part.LineSegment(App.Vector(0, 50.5, 0), App.Vector(0, 37.5, 0)),  # 6
    Part.ArcOfCircle(Part.Circle(App.Vector(1, 37.5, 0), App.Vector(0, 0, 1), 1), math.radians(180), math.radians(270)),  # 7
    Part.LineSegment(App.Vector(1, 36.5, 0), App.Vector(278.8, 36.5, 0)),  # 8
    Part.ArcOfCircle(Part.Circle(App.Vector(278.8, 35.5, 0), App.Vector(0, 0, 1), 1), math.radians(0), math.radians(90)),  # 9
    Part.LineSegment(App.Vector(279.8, 35.5, 0), App.Vector(279.8, 28, 0)),  # 10
    Part.ArcOfCircle(Part.Circle(App.Vector(280.8, 28, 0), App.Vector(0, 0, 1), 1), math.radians(180), math.radians(270)),  # 11
    Part.LineSegment(App.Vector(280.8, 27, 0), App.Vector(378.8, 27, 0)),  # 12
    Part.ArcOfCircle(Part.Circle(App.Vector(378.8, 28, 0), App.Vector(0, 0, 1), 1), math.radians(-90), math.radians(0)),  # 13
    Part.LineSegment(App.Vector(379.8, 28, 0), App.Vector(379.8, 35.5, 0)),  # 14
    Part.ArcOfCircle(Part.Circle(App.Vector(380.8, 35.5, 0), App.Vector(0, 0, 1), 1), math.radians(90), math.radians(180)),  # 15
    Part.LineSegment(App.Vector(380.8, 36.5, 0), App.Vector(409.8, 36.5, 0)),  # 16
    Part.ArcOfCircle(Part.Circle(App.Vector(409.8, 37.5, 0), App.Vector(0, 0, 1), 1), math.radians(-90), math.radians(0)),  # 17
    Part.LineSegment(App.Vector(410.8, 37.5, 0), App.Vector(410.8, 50.5, 0)),  # 18
    Part.ArcOfCircle(Part.Circle(App.Vector(409.8, 50.5, 0), App.Vector(0, 0, 1), 1), math.radians(0), math.radians(90)),  # 19
    Part.LineSegment(App.Vector(409.8, 51.5, 0), App.Vector(380.8, 51.5, 0)),  # 20
    Part.ArcOfCircle(Part.Circle(App.Vector(380.8, 52.5, 0), App.Vector(0, 0, 1), 1), math.radians(180), math.radians(270)),  # 21
    Part.LineSegment(App.Vector(379.8, 52.5, 0), App.Vector(379.8, 55.5, 0)),  # 22
    Part.ArcOfCircle(Part.Circle(App.Vector(378.8, 55.5, 0), App.Vector(0, 0, 1), 1), math.radians(0), math.radians(90)),  # 23
], False)
sketch8.addConstraint([
    Sketcher.Constraint("Tangent", 0, 2, 1, 1),
    Sketcher.Constraint("Tangent", 1, 2, 2, 1),
    Sketcher.Constraint("Tangent", 2, 2, 3, 2),
    Sketcher.Constraint("Tangent", 3, 1, 4, 1),
    Sketcher.Constraint("Tangent", 4, 2, 5, 1),
    Sketcher.Constraint("Tangent", 5, 2, 6, 1),
    Sketcher.Constraint("Tangent", 6, 2, 7, 1),
    Sketcher.Constraint("Tangent", 7, 2, 8, 1),
    Sketcher.Constraint("Tangent", 8, 2, 9, 2),
    Sketcher.Constraint("Tangent", 9, 1, 10, 1),
    Sketcher.Constraint("Tangent", 10, 2, 11, 1),
    Sketcher.Constraint("Tangent", 11, 2, 12, 1),
    Sketcher.Constraint("Tangent", 12, 2, 13, 1),
    Sketcher.Constraint("Tangent", 13, 2, 14, 1),
    Sketcher.Constraint("Tangent", 14, 2, 15, 2),
    Sketcher.Constraint("Tangent", 15, 1, 16, 1),
    Sketcher.Constraint("Tangent", 16, 2, 17, 1),
    Sketcher.Constraint("Tangent", 17, 2, 18, 1),
    Sketcher.Constraint("Tangent", 18, 2, 19, 1),
    Sketcher.Constraint("Tangent", 19, 2, 20, 1),
    Sketcher.Constraint("Tangent", 20, 2, 21, 2),
    Sketcher.Constraint("Tangent", 21, 1, 22, 1),
    Sketcher.Constraint("Tangent", 22, 2, 23, 1),
    Sketcher.Constraint("Tangent", 23, 2, 0, 1),
    Sketcher.Constraint("Horizontal", 0),
    Sketcher.Constraint("Vertical", 2),
    Sketcher.Constraint("Horizontal", 4),
    Sketcher.Constraint("Vertical", 6),
    Sketcher.Constraint("Horizontal", 8),
    Sketcher.Constraint("Vertical", 10),
    Sketcher.Constraint("Horizontal", 12),
    Sketcher.Constraint("Vertical", 14),
    Sketcher.Constraint("Horizontal", 16),
    Sketcher.Constraint("Vertical", 18),
    Sketcher.Constraint("Horizontal", 20),
    Sketcher.Constraint("Vertical", 22),
    Sketcher.Constraint("Equal", 1, 3),
    Sketcher.Constraint("Equal", 3, 5),
    Sketcher.Constraint("Equal", 5, 7),
    Sketcher.Constraint("Equal", 7, 9),
    Sketcher.Constraint("Equal", 9, 11),
    Sketcher.Constraint("Equal", 11, 13),
    Sketcher.Constraint("Equal", 13, 15),
    Sketcher.Constraint("Equal", 15, 17),
    Sketcher.Constraint("Equal", 17, 19),
    Sketcher.Constraint("Equal", 19, 21),
    Sketcher.Constraint("Equal", 21, 23),
    Sketcher.Constraint("PointOnObject", 5, 2, -2),
    Sketcher.Constraint("Horizontal", 9, 3, 15, 3),
    Sketcher.Constraint("Horizontal", 5, 3, 19, 3),
    Sketcher.Constraint("Vertical", 3, 3, 9, 3),
    Sketcher.Constraint("Vertical", 15, 3, 21, 3),
    Sketcher.Constraint("Radius", 1, 0.999999),
    Sketcher.Constraint("DistanceX", 0, 2, 0, 1, 98.0),
    Sketcher.Constraint("DistanceX", 16, 1, 16, 2, 29.0),
    Sketcher.Constraint("DistanceY", 2, 2, 2, 1, 3.0),
    Sketcher.Constraint("DistanceY", 6, 2, 6, 1, 13.0),
    Sketcher.Constraint("DistanceX", 4, 2, 4, 1, 277.8),
    Sketcher.Constraint("DistanceY", 10, 2, 10, 1, 7.5),
    Sketcher.Constraint("DistanceY", -1, 1, 11, 3, 27.999999),
])
pocket7 = body.newObject("PartDesign::Pocket", "Pocket006")
pocket7.Profile = sketch8
pocket7.Length = 7.5

# Sketch on XZ plane
sketch9 = body.newObject("Sketcher::SketchObject", "Sketch008")
sketch9.AttachmentSupport = (doc.getObject("XZ_Plane"), [""])
sketch9.MapMode = "FlatFace"
sketch9.addGeometry([
    Part.Circle(App.Vector(287.3, 49, 0), App.Vector(0, 0, 1), 3),
    Part.Circle(App.Vector(372.3, 49, 0), App.Vector(0, 0, 1), 3),
    Part.Circle(App.Vector(287.3, 15, 0), App.Vector(0, 0, 1), 3),
    Part.Circle(App.Vector(372.3, 15, 0), App.Vector(0, 0, 1), 3),
], False)
sketch9.addConstraint([
    Sketcher.Constraint("Equal", 0, 1),
    Sketcher.Constraint("Equal", 1, 2),
    Sketcher.Constraint("Equal", 2, 3),
    Sketcher.Constraint("Horizontal", 0, 3, 1, 3),
    Sketcher.Constraint("Horizontal", 2, 3, 3, 3),
    Sketcher.Constraint("Vertical", 0, 3, 2, 3),
    Sketcher.Constraint("Vertical", 1, 3, 3, 3),
    Sketcher.Constraint("Diameter", 0, 6.0),
    Sketcher.Constraint("DistanceY", -1, 1, 0, 3, 49.0),
    Sketcher.Constraint("DistanceY", -1, 1, 2, 3, 15.0),
    Sketcher.Constraint("DistanceX", 0, 3, 1, 3, 85.0),
    Sketcher.Constraint("DistanceX", -1, 1, 0, 3, 287.3),
])
pocket8 = body.newObject("PartDesign::Pocket", "Pocket007")
pocket8.Profile = sketch9
pocket8.Length = 3
pocket8.Reversed = True

doc.recompute()
